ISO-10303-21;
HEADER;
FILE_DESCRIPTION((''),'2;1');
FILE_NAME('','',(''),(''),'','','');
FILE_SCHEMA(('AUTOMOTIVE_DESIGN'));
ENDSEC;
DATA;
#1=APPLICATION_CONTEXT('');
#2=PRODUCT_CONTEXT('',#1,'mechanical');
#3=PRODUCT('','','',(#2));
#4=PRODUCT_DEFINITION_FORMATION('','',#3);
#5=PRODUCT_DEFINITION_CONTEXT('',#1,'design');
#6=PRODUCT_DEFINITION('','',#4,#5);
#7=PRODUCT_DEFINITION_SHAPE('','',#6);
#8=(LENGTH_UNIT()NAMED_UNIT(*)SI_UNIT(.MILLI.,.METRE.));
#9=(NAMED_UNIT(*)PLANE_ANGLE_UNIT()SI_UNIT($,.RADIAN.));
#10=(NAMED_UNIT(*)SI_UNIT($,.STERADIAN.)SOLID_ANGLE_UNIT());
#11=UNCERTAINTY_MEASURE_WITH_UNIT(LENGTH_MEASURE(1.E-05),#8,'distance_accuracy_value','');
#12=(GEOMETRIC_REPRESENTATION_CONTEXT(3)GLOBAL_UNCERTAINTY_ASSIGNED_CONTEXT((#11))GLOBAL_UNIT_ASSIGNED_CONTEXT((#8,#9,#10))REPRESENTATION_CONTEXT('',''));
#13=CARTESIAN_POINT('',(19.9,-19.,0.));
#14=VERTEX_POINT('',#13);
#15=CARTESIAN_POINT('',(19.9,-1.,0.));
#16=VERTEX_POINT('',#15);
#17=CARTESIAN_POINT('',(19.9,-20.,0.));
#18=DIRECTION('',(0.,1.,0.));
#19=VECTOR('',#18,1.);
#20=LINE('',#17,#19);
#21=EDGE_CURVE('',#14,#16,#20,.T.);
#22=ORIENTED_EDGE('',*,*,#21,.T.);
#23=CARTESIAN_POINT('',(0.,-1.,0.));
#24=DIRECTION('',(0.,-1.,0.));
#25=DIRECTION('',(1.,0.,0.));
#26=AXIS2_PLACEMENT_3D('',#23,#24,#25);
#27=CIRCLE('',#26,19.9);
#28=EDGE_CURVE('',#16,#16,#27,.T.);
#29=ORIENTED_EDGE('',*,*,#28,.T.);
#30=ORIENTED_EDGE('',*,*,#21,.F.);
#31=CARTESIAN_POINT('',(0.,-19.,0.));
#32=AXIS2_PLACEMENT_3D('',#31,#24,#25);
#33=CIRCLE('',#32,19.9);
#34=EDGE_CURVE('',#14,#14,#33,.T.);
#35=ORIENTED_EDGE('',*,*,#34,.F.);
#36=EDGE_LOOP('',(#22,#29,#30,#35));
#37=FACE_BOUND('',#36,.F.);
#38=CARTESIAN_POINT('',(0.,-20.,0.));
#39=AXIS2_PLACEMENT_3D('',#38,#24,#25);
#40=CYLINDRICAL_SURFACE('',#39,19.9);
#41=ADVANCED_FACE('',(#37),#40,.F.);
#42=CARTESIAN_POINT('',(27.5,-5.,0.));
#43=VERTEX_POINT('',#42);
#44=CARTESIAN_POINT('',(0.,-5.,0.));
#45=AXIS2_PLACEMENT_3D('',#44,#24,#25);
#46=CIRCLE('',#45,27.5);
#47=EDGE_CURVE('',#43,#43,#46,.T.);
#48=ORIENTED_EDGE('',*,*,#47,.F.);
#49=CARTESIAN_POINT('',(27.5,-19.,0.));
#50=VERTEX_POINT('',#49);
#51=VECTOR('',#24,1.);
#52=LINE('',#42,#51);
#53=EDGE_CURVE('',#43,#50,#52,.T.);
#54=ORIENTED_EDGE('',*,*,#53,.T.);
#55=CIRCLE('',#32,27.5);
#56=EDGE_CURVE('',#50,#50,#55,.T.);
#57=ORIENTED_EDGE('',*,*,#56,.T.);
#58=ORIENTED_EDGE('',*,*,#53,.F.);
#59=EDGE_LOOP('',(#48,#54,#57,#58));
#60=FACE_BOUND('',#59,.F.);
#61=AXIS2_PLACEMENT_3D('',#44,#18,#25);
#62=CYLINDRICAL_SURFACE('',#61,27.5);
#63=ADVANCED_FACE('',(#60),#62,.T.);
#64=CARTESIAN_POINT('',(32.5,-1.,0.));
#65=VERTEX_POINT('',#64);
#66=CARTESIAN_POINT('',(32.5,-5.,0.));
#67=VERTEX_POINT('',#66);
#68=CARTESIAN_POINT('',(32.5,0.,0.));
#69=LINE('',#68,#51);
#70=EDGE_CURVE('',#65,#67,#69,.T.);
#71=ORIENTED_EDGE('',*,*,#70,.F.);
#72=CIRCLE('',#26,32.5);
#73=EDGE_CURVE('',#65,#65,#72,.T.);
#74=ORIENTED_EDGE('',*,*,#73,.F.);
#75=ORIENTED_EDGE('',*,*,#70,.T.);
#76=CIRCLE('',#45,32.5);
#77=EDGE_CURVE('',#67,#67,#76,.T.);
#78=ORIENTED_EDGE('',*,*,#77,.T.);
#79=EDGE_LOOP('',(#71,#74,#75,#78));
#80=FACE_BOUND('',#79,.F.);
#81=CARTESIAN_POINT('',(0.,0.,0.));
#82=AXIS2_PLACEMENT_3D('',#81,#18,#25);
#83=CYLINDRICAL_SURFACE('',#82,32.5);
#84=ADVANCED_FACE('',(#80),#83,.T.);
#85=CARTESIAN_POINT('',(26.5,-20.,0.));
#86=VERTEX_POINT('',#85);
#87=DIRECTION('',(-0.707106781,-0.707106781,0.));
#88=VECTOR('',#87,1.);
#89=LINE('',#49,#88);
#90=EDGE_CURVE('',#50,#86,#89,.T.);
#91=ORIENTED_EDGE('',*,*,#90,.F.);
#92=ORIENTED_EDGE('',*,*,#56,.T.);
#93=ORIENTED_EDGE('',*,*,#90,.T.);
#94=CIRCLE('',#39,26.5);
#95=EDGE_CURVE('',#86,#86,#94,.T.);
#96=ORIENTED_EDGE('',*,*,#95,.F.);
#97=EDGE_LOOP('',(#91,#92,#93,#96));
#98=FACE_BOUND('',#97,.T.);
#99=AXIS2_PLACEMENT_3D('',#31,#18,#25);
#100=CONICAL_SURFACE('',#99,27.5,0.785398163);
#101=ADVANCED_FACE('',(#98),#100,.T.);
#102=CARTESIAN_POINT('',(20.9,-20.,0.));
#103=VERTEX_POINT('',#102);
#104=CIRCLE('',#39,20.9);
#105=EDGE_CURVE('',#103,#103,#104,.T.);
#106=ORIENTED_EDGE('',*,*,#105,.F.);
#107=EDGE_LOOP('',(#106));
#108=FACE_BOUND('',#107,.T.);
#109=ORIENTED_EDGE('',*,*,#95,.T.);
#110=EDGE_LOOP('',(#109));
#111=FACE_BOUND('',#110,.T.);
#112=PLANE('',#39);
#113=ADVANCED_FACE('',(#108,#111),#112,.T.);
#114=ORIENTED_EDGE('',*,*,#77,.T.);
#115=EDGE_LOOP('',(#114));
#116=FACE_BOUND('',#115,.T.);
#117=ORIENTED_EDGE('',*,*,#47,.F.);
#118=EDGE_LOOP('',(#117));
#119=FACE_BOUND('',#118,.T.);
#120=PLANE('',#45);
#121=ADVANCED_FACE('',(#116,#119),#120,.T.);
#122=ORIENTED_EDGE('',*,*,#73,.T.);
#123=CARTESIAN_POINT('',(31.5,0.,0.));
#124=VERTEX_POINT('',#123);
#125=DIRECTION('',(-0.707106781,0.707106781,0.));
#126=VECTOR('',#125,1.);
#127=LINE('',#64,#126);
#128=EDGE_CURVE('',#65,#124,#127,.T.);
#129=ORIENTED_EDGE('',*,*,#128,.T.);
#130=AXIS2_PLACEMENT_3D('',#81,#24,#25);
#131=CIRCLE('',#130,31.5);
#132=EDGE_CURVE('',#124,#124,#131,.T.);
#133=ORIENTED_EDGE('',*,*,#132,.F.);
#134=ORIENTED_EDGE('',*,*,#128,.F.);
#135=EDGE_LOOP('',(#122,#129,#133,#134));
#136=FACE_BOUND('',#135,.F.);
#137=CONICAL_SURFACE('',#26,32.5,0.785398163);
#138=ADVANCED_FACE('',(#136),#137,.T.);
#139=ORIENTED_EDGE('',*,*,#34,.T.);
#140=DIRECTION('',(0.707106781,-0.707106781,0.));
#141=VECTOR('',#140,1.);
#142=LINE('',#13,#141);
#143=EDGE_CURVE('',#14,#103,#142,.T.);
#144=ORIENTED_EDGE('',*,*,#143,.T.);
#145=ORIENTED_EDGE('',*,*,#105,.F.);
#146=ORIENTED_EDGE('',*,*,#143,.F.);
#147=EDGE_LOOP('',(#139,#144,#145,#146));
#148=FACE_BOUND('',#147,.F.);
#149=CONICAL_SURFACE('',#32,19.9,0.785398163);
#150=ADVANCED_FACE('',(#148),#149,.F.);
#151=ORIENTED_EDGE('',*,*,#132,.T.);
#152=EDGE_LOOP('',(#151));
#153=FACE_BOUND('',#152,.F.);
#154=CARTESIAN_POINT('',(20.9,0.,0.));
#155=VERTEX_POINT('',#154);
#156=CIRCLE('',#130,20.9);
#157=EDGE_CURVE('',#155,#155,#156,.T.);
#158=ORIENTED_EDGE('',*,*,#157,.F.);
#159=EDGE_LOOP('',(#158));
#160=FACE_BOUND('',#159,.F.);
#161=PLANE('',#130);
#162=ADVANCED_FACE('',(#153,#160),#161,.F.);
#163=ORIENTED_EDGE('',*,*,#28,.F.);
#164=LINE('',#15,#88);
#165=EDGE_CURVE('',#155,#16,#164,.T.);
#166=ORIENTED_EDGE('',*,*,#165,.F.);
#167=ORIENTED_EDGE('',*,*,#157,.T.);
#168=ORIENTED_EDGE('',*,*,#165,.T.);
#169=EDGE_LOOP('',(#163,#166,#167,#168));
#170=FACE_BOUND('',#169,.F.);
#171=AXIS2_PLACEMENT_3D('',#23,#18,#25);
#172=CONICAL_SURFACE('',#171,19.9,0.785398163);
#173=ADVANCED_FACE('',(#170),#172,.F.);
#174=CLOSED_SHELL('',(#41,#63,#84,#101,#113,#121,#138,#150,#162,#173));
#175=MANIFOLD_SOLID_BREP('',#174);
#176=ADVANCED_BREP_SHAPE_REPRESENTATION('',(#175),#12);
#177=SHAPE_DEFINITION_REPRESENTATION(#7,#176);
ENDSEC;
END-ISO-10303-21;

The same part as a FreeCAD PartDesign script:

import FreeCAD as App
import Part
import Sketcher
Q = App.Units.Quantity


def edges_at(feature, points):
    """Names of the edges that pass closest to the given points."""
    edges = feature.Shape.Edges
    near = lambda p: min(range(len(edges)), key=lambda i: edges[i].distToShape(Part.Vertex(*p))[0])
    return sorted({f"Edge{near(p) + 1}" for p in points})

doc = App.newDocument("Part")
body = doc.addObject("PartDesign::Body", "Body")

sketch1 = body.newObject("Sketcher::SketchObject", "Sketch")
sketch1.AttachmentSupport = (doc.getObject("XZ_Plane"), [""])
sketch1.MapMode = "FlatFace"
sketch1.addGeometry(Part.Circle(App.Vector(0, 0, 0), App.Vector(0, 0, 1), 32), False)
sketch1.addConstraint([
    Sketcher.Constraint("Coincident", 0, 3, -1, 1),
    Sketcher.Constraint("Diameter", 0, Q("65 mm")),
])
pad1 = body.newObject("PartDesign::Pad", "Pad")
pad1.Profile = sketch1
pad1.Length = 5

sketch2 = body.newObject("Sketcher::SketchObject", "Sketch001")
sketch2.AttachmentSupport = (doc.getObject("XZ_Plane"), [""])
sketch2.MapMode = "FlatFace"
sketch2.AttachmentOffset = App.Placement(App.Vector(0, 0, 5), App.Rotation())
sketch2.addGeometry(Part.Circle(App.Vector(0, 0, 0), App.Vector(0, 0, 1), 28), False)
sketch2.addConstraint([
    Sketcher.Constraint("Coincident", 0, 3, -1, 1),
    Sketcher.Constraint("Diameter", 0, Q("55 mm")),
])
pad2 = body.newObject("PartDesign::Pad", "Pad001")
pad2.Profile = sketch2
pad2.Length = 15

sketch3 = body.newObject("Sketcher::SketchObject", "Sketch002")
sketch3.AttachmentSupport = (doc.getObject("XZ_Plane"), [""])
sketch3.MapMode = "FlatFace"
sketch3.AttachmentOffset = App.Placement(App.Vector(0, 0, 20), App.Rotation())
sketch3.addGeometry(Part.Circle(App.Vector(0, 0, 0), App.Vector(0, 0, 1), 20), False)
sketch3.addConstraint([
    Sketcher.Constraint("Coincident", 0, 3, -1, 1),
    Sketcher.Constraint("Diameter", 0, Q("39.8 mm")),
])
pocket1 = body.newObject("PartDesign::Pocket", "Pocket")
pocket1.Profile = sketch3
pocket1.Length = 25
doc.recompute()

chamfer = body.newObject("PartDesign::Chamfer", "Chamfer")
chamfer.Base = (pocket1, edges_at(pocket1, [
    (-32.5, 0, 0),
    (-27.5, -20, 0),
    (-19.9, -20, 0),
    (-19.9, 0, 0),
]))
chamfer.Size = 1

doc.recompute()
